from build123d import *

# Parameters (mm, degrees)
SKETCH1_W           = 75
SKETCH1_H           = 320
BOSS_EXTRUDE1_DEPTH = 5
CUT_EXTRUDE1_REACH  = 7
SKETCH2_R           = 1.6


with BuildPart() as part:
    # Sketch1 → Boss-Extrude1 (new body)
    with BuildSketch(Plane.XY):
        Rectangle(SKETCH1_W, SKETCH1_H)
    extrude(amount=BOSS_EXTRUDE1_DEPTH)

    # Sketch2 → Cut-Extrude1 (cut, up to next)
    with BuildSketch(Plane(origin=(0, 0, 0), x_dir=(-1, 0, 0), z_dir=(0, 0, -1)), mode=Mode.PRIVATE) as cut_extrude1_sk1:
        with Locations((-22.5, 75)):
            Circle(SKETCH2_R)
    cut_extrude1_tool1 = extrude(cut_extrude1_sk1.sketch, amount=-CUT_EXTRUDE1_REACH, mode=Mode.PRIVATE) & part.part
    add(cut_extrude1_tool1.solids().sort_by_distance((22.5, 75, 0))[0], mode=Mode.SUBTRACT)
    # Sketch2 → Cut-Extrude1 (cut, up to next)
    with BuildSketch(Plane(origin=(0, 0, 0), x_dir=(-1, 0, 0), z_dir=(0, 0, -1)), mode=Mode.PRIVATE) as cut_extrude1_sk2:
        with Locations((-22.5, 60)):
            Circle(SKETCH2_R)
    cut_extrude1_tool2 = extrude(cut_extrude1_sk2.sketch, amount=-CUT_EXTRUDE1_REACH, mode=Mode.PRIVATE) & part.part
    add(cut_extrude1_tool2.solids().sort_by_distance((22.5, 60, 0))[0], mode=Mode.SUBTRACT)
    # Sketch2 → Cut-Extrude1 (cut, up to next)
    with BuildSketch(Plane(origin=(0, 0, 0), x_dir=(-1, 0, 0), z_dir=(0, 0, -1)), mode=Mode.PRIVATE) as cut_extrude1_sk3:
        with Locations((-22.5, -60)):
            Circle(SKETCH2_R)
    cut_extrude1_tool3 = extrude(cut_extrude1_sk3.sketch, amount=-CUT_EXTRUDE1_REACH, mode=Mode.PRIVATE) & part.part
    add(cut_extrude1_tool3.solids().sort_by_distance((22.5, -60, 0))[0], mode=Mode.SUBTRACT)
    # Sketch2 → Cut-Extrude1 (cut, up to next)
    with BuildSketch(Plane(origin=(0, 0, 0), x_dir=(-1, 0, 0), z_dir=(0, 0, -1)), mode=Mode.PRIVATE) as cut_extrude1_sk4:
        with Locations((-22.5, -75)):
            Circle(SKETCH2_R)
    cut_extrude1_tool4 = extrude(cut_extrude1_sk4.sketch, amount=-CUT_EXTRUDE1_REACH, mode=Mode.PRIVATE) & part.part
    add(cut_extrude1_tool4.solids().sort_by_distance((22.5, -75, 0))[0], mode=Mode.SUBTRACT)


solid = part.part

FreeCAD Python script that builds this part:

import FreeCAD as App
import Part
import Sketcher
from FreeCAD import Vector
Q = App.Units.Quantity

doc = App.newDocument("Part")
body = doc.addObject("PartDesign::Body", "Body")

# Sketch on XY plane
sketch1 = body.newObject("Sketcher::SketchObject", "Sketch")
sketch1.AttachmentSupport = (doc.getObject("XY_Plane"), [""])
sketch1.MapMode = "FlatFace"
sketch1.addGeometry(Part.LineSegment(Vector(-38, 160, 0), Vector(-38, -160, 0)), False)
sketch1.addGeometry(Part.LineSegment(Vector(-38, -160, 0), Vector(38, -160, 0)), False)
sketch1.addGeometry(Part.LineSegment(Vector(38, -160, 0), Vector(38, 160, 0)), False)
sketch1.addGeometry(Part.LineSegment(Vector(38, 160, 0), Vector(-38, 160, 0)), False)
sketch1.addConstraint(Sketcher.Constraint("Coincident", 0, 2, 1, 1))
sketch1.addConstraint(Sketcher.Constraint("Coincident", 1, 2, 2, 1))
sketch1.addConstraint(Sketcher.Constraint("Coincident", 2, 2, 3, 1))
sketch1.addConstraint(Sketcher.Constraint("Coincident", 3, 2, 0, 1))
sketch1.addConstraint(Sketcher.Constraint("Vertical", 0))
sketch1.addConstraint(Sketcher.Constraint("Horizontal", 1))
sketch1.addConstraint(Sketcher.Constraint("Vertical", 2))
sketch1.addConstraint(Sketcher.Constraint("Horizontal", 3))
sketch1.addConstraint(Sketcher.Constraint("Symmetric", 0, 2, 2, 2, -1, 1))
sketch1.addConstraint(Sketcher.Constraint("DistanceX", 1, 1, 1, 2, Q("75 mm")))
sketch1.addConstraint(Sketcher.Constraint("DistanceY", 0, 2, 0, 1, Q("320 mm")))
pad1 = body.newObject("PartDesign::Pad", "Pad")
pad1.Profile = sketch1
pad1.Length = 5

# Sketch on XY plane
sketch2 = body.newObject("Sketcher::SketchObject", "Sketch001")
sketch2.AttachmentSupport = (doc.getObject("XY_Plane"), [""])
sketch2.MapMode = "FlatFace"
sketch2.addGeometry(Part.Circle(Vector(22.5, 75, 0), Vector(0, 0, 1), 1.6), False)
sketch2.addConstraint(Sketcher.Constraint("Diameter", 0, Q("3.2 mm")))
sketch2.addConstraint(Sketcher.Constraint("DistanceY", -1, 1, 0, 3, Q("75 mm")))
sketch2.addConstraint(Sketcher.Constraint("DistanceX", -1, 1, 0, 3, Q("22.5 mm")))
pocket1 = body.newObject("PartDesign::Pocket", "Pocket")
pocket1.Profile = sketch2
pocket1.Type = "UpToFirst"
pocket1.Reversed = True

# Sketch on XY plane
sketch3 = body.newObject("Sketcher::SketchObject", "Sketch002")
sketch3.AttachmentSupport = (doc.getObject("XY_Plane"), [""])
sketch3.MapMode = "FlatFace"
sketch3.addGeometry(Part.Circle(Vector(22.5, 60, 0), Vector(0, 0, 1), 1.6), False)
sketch3.addConstraint(Sketcher.Constraint("Diameter", 0, Q("3.2 mm")))
sketch3.addConstraint(Sketcher.Constraint("DistanceY", -1, 1, 0, 3, Q("60 mm")))
sketch3.addConstraint(Sketcher.Constraint("DistanceX", -1, 1, 0, 3, Q("22.5 mm")))
pocket2 = body.newObject("PartDesign::Pocket", "Pocket001")
pocket2.Profile = sketch3
pocket2.Type = "UpToFirst"
pocket2.Reversed = True

# Sketch on XY plane
sketch4 = body.newObject("Sketcher::SketchObject", "Sketch003")
sketch4.AttachmentSupport = (doc.getObject("XY_Plane"), [""])
sketch4.MapMode = "FlatFace"
sketch4.addGeometry(Part.Circle(Vector(22.5, -60, 0), Vector(0, 0, 1), 1.6), False)
sketch4.addConstraint(Sketcher.Constraint("Diameter", 0, Q("3.2 mm")))
sketch4.addConstraint(Sketcher.Constraint("DistanceY", 0, 3, -1, 1, Q("60 mm")))
sketch4.addConstraint(Sketcher.Constraint("DistanceX", -1, 1, 0, 3, Q("22.5 mm")))
pocket3 = body.newObject("PartDesign::Pocket", "Pocket002")
pocket3.Profile = sketch4
pocket3.Type = "UpToFirst"
pocket3.Reversed = True

# Sketch on XY plane
sketch5 = body.newObject("Sketcher::SketchObject", "Sketch004")
sketch5.AttachmentSupport = (doc.getObject("XY_Plane"), [""])
sketch5.MapMode = "FlatFace"
sketch5.addGeometry(Part.Circle(Vector(22.5, -75, 0), Vector(0, 0, 1), 1.6), False)
sketch5.addConstraint(Sketcher.Constraint("Diameter", 0, Q("3.2 mm")))
sketch5.addConstraint(Sketcher.Constraint("DistanceY", 0, 3, -1, 1, Q("75 mm")))
sketch5.addConstraint(Sketcher.Constraint("DistanceX", -1, 1, 0, 3, Q("22.5 mm")))
pocket4 = body.newObject("PartDesign::Pocket", "Pocket003")
pocket4.Profile = sketch5
pocket4.Type = "UpToFirst"
pocket4.Reversed = True

doc.recompute()
